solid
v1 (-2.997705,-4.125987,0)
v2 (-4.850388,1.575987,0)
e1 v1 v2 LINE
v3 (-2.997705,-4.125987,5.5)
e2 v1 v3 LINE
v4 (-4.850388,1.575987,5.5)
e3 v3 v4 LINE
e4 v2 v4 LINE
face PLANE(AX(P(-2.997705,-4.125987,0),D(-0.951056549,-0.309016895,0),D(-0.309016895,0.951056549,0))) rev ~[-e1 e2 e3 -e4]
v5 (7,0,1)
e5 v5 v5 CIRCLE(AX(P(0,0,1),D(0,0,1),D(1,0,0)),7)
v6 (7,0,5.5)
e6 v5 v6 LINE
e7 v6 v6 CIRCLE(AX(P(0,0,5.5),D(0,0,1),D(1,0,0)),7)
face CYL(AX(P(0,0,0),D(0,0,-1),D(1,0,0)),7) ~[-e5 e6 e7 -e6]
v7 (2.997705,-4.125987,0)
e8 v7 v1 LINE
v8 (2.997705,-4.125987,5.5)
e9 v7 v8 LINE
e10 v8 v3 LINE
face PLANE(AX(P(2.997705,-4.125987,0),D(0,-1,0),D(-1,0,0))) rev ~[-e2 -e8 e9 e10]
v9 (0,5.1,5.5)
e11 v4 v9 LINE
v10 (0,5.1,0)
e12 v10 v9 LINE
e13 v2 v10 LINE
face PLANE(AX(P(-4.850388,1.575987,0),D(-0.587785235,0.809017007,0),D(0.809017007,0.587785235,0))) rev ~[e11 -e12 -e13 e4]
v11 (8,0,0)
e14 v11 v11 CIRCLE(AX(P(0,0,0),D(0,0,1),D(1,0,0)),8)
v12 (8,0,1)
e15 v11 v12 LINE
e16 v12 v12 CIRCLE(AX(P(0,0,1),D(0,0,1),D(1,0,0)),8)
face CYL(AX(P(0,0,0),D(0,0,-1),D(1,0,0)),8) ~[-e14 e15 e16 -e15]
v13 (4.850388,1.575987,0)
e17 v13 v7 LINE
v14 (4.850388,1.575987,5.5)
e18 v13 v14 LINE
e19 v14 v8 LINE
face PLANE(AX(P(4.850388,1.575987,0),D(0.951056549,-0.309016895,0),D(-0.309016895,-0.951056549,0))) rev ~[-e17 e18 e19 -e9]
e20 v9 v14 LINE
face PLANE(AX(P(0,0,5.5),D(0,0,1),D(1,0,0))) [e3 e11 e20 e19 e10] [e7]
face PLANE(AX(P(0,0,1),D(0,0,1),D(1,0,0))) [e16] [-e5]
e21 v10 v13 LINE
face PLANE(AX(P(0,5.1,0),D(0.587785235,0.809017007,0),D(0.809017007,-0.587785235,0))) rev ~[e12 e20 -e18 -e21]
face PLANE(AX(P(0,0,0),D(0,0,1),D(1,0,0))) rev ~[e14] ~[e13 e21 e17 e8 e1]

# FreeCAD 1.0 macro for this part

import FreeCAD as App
import Part
import Sketcher
Q = App.Units.Quantity

doc = App.newDocument("Part")
body = doc.addObject("PartDesign::Body", "Body")

sketch1 = body.newObject("Sketcher::SketchObject", "Sketch")
sketch1.AttachmentSupport = (doc.getObject("XY_Plane"), [""])
sketch1.MapMode = "FlatFace"
sketch1.addGeometry([
    Part.Circle(App.Vector(0, 0, 0), App.Vector(0, 0, 1), 7),
    Part.LineSegment(App.Vector(-5, 2, 0), App.Vector(0, 5, 0)),
    Part.LineSegment(App.Vector(0, 5, 0), App.Vector(5, 2, 0)),
    Part.LineSegment(App.Vector(5, 2, 0), App.Vector(3, -4, 0)),
    Part.LineSegment(App.Vector(3, -4, 0), App.Vector(-3, -4, 0)),
    Part.LineSegment(App.Vector(-3, -4, 0), App.Vector(-5, 2, 0)),
], False)
sketch1.addConstraint([
    Sketcher.Constraint("Coincident", 1, 2, 2, 1),
    Sketcher.Constraint("Coincident", 2, 2, 3, 1),
    Sketcher.Constraint("Coincident", 3, 2, 4, 1),
    Sketcher.Constraint("Coincident", 4, 2, 5, 1),
    Sketcher.Constraint("Coincident", 5, 2, 1, 1),
    Sketcher.Constraint("Horizontal", 4),
    Sketcher.Constraint("Coincident", 0, 3, -1, 1),
    Sketcher.Constraint("Symmetric", 2, 2, 5, 2, -2),
    Sketcher.Constraint("PointOnObject", 1, 2, -2),
    Sketcher.Constraint("Equal", 2, 3),
    Sketcher.Constraint("Equal", 3, 5),
    Sketcher.Constraint("Diameter", 0, Q("14 mm")),
    Sketcher.Constraint("Angle", 1, Q("35.999999 deg")),
    Sketcher.Constraint("Angle", 3, Q("-107.999994 deg")),
    Sketcher.Constraint("DistanceY", -1, 1, 1, 2, Q("5.1 mm")),
    Sketcher.Constraint("DistanceX", 4, 2, 4, 1, Q("5.99541 mm")),
])
pad1 = body.newObject("PartDesign::Pad", "Pad")
pad1.Profile = sketch1
pad1.Length = 5.5

sketch2 = body.newObject("Sketcher::SketchObject", "Sketch001")
sketch2.AttachmentSupport = (doc.getObject("XY_Plane"), [""])
sketch2.MapMode = "FlatFace"
sketch2.addGeometry([
    Part.Circle(App.Vector(0, 0, 0), App.Vector(0, 0, 1), 8),
    Part.Circle(App.Vector(0, 0, 0), App.Vector(0, 0, 1), 7),
], False)
sketch2.addConstraint([
    Sketcher.Constraint("Coincident", 0, 3, -1, 1),
    Sketcher.Constraint("Coincident", 1, 3, -1, 1),
    Sketcher.Constraint("Diameter", 0, Q("16 mm")),
    Sketcher.Constraint("Diameter", 1, Q("14 mm")),
])
pad2 = body.newObject("PartDesign::Pad", "Pad001")
pad2.Profile = sketch2
pad2.Length = 1

doc.recompute()
